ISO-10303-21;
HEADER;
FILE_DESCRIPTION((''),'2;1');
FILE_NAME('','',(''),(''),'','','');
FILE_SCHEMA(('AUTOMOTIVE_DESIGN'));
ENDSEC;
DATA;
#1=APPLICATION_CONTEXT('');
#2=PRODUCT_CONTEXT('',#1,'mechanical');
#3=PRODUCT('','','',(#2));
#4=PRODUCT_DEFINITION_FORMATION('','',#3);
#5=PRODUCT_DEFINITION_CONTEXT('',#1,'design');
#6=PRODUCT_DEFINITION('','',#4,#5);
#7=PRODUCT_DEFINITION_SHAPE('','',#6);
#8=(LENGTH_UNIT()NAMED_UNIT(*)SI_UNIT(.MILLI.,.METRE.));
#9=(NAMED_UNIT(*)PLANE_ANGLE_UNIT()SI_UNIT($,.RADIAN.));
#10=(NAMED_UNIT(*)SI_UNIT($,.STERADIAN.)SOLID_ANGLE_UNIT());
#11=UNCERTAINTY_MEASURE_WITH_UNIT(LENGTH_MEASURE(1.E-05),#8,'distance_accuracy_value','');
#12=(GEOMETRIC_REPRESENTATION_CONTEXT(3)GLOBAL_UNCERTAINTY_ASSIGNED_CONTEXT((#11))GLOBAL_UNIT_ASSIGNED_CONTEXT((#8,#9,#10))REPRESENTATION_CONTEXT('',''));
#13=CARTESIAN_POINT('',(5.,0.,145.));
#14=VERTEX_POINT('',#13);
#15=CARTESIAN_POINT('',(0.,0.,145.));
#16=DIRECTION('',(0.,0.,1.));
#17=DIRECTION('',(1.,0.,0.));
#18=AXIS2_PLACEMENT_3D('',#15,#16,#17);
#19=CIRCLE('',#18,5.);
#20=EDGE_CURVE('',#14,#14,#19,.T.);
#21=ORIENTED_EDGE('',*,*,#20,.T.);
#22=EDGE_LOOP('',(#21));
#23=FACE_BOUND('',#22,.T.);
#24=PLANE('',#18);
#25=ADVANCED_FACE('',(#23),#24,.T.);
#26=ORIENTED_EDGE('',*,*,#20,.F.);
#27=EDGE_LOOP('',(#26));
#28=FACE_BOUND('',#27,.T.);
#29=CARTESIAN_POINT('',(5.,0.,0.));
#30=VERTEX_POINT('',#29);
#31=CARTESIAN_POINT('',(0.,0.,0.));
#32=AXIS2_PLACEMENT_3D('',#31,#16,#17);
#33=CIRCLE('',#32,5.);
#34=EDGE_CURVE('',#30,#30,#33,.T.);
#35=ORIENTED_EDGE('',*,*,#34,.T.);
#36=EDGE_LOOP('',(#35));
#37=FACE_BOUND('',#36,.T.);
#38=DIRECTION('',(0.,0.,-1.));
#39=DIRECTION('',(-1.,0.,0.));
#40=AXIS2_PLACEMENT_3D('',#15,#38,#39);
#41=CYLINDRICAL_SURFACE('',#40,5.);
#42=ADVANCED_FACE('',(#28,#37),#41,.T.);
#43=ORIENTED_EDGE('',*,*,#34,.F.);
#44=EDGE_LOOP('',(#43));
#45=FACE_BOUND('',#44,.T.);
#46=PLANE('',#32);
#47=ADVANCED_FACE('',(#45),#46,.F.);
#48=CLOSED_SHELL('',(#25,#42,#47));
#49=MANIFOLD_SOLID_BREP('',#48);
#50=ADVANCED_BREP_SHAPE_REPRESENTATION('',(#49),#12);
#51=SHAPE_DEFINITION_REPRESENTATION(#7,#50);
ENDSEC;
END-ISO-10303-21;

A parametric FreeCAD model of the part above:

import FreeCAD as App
import Part
import Sketcher

doc = App.newDocument("Part")
body = doc.addObject("PartDesign::Body", "Body")

# Sketch on XY plane
sketch1 = body.newObject("Sketcher::SketchObject", "Sketch")
sketch1.AttachmentSupport = (doc.getObject("XY_Plane"), [""])
sketch1.MapMode = "FlatFace"
sketch1.addGeometry(Part.Circle(App.Vector(0, 0, 0), App.Vector(0, 0, 1), 5), False)
sketch1.addConstraint([
    Sketcher.Constraint("Coincident", 0, 3, -1, 1),
    Sketcher.Constraint("Diameter", 0, 10.0),
])
pad1 = body.newObject("PartDesign::Pad", "Pad")
pad1.Profile = sketch1
pad1.Length = 145

doc.recompute()
